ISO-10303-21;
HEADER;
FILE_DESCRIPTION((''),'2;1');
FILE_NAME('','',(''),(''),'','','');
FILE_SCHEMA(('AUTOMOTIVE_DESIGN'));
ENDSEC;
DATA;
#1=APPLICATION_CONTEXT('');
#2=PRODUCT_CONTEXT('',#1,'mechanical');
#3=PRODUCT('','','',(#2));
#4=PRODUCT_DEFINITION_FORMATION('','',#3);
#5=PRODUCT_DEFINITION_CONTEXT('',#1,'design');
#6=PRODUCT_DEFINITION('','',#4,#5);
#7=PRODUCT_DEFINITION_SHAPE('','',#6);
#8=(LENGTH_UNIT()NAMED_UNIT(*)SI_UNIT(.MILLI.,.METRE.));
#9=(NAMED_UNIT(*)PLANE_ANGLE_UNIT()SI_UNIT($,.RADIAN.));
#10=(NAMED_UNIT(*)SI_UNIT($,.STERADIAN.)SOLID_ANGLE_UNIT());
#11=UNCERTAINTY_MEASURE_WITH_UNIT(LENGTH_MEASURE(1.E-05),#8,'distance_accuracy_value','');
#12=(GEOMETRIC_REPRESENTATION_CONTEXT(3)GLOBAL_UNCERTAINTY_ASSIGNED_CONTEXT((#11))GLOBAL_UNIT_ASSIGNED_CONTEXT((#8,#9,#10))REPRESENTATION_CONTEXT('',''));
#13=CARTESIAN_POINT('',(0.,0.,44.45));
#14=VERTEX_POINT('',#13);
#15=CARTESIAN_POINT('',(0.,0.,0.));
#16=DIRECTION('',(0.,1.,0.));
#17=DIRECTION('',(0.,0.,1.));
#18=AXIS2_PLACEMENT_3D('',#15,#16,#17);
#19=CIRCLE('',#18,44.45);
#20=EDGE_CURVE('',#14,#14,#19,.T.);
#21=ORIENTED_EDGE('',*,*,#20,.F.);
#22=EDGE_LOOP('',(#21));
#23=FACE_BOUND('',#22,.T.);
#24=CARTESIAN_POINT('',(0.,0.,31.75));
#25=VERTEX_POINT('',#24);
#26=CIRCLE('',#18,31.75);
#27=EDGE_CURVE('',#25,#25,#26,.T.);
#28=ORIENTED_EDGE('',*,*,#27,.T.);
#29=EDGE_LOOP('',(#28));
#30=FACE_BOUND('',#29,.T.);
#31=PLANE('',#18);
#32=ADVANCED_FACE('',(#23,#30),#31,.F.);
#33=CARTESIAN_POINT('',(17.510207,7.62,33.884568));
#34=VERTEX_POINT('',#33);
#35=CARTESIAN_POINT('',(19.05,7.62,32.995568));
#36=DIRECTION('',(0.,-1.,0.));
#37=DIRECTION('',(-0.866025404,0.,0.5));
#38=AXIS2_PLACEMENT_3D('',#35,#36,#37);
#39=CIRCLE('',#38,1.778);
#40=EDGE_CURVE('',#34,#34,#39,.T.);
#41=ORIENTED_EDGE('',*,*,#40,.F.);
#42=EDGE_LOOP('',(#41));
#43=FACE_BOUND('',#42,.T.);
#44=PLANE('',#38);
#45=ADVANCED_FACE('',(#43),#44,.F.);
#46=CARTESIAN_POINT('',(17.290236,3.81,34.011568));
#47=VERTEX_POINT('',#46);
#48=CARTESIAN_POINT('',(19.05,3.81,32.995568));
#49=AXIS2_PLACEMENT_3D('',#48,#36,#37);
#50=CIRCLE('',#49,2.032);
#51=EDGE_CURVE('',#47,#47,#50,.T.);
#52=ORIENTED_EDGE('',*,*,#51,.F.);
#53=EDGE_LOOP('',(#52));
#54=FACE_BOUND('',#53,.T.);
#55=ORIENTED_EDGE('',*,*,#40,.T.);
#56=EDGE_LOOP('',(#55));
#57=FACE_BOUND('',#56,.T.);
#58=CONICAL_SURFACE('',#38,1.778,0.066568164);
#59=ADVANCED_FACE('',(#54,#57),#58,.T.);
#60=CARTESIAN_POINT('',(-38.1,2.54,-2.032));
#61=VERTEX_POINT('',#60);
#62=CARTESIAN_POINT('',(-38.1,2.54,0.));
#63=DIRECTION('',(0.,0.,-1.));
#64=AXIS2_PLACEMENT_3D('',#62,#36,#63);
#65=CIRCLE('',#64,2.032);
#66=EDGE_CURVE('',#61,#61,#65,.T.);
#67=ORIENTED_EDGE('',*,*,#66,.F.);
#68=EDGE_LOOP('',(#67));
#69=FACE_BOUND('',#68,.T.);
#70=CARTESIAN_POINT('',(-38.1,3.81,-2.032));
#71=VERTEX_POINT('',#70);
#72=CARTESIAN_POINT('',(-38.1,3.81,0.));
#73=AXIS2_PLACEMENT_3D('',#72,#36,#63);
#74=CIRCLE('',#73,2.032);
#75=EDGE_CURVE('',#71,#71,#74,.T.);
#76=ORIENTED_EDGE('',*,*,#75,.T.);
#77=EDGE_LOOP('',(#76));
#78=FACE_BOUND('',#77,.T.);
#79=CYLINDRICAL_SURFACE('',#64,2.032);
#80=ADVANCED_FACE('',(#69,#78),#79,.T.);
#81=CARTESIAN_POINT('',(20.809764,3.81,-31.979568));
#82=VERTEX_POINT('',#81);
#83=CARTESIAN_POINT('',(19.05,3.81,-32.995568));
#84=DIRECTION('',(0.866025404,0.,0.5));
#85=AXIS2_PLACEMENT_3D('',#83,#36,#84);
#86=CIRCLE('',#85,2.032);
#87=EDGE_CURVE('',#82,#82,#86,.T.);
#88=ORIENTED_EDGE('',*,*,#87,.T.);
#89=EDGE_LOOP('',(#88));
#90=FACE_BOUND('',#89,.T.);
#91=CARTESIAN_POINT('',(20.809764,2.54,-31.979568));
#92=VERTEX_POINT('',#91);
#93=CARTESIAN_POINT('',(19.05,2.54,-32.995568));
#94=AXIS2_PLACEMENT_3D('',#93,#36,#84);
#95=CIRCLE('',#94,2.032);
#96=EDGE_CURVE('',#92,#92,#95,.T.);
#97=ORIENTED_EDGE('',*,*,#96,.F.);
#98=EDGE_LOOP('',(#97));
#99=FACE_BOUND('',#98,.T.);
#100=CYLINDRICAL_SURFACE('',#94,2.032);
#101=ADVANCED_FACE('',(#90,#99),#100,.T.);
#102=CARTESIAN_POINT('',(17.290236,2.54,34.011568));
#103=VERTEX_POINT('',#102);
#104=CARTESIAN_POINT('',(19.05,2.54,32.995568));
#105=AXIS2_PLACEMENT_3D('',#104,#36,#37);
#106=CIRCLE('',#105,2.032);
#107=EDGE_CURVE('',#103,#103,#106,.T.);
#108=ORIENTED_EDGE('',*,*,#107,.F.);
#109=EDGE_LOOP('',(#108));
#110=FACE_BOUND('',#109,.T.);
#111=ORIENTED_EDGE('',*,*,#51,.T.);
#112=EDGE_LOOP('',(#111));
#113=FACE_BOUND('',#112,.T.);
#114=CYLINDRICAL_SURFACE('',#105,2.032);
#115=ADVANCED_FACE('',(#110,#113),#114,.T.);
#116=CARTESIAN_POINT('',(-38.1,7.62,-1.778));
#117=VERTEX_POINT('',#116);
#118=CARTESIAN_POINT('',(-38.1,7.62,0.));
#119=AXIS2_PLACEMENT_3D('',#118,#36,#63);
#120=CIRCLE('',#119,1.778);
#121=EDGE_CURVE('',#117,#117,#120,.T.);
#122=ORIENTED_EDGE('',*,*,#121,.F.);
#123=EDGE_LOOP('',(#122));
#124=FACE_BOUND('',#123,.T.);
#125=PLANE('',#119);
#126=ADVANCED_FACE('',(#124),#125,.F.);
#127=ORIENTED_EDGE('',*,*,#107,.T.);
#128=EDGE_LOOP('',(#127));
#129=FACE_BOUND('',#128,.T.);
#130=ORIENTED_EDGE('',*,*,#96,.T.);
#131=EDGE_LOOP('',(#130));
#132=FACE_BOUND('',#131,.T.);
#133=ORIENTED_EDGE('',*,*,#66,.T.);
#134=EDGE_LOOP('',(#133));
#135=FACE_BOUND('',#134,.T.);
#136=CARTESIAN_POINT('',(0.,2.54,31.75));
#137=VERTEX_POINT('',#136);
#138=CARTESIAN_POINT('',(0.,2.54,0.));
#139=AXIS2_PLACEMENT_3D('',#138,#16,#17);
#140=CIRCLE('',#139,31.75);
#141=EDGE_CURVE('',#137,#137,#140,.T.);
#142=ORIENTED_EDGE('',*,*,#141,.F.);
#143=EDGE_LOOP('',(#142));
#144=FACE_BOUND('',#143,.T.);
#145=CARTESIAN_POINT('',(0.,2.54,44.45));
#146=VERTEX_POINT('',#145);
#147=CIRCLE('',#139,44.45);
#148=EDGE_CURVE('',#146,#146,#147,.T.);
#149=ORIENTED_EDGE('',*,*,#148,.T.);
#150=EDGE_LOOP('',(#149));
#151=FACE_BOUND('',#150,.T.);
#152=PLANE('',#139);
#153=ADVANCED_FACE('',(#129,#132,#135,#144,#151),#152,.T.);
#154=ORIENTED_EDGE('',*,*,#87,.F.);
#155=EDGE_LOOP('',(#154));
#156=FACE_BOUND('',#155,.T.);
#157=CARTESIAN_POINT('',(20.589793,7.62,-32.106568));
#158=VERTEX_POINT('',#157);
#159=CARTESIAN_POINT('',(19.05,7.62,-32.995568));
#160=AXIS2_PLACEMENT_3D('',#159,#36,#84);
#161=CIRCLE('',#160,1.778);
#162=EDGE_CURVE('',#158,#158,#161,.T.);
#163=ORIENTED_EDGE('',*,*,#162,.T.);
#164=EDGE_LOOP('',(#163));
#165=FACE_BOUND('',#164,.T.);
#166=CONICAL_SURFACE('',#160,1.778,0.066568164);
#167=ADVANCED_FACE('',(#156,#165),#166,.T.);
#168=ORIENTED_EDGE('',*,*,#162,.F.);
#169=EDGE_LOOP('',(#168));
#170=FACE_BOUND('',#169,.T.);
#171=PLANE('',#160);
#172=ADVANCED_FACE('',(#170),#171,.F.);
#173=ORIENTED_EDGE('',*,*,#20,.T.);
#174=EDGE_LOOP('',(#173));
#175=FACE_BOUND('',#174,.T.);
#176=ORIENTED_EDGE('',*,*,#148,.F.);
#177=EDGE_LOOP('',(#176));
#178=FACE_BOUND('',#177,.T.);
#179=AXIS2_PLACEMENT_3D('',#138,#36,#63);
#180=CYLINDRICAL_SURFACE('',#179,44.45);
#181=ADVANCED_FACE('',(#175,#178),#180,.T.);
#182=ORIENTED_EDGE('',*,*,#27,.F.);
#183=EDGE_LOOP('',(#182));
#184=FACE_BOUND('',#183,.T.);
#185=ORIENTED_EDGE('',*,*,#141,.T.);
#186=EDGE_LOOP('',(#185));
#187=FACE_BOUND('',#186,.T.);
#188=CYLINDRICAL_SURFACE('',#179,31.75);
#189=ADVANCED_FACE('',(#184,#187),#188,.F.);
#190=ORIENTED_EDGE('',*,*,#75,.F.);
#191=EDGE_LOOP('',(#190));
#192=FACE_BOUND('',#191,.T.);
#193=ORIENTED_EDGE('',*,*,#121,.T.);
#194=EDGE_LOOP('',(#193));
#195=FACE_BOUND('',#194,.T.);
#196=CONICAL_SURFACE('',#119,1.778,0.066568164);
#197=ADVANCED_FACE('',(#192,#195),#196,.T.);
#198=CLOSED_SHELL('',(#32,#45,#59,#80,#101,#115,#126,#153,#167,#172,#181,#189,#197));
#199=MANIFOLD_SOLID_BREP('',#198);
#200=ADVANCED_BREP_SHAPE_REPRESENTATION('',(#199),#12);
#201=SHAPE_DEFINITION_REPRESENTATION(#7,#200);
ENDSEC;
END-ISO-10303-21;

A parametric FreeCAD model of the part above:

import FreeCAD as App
import Part
import Sketcher
Q = App.Units.Quantity

doc = App.newDocument("Part")
body = doc.addObject("PartDesign::Body", "Body")

# Sketch on XZ plane
sketch1 = body.newObject("Sketcher::SketchObject", "Sketch")
sketch1.AttachmentSupport = (doc.getObject("XZ_Plane"), [""])
sketch1.MapMode = "FlatFace"
sketch1.addGeometry([
    Part.Circle(App.Vector(0, 0, 0), App.Vector(0, 0, 1), 44),
    Part.Circle(App.Vector(0, 0, 0), App.Vector(0, 0, 1), 32),
], False)
sketch1.addConstraint([
    Sketcher.Constraint("Coincident", 0, 3, -1, 1),
    Sketcher.Constraint("Coincident", 1, 3, -1, 1),
    Sketcher.Constraint("Diameter", 0, Q("3.5 in")),
    Sketcher.Constraint("Diameter", 1, Q("2.5 in")),
])
pad1 = body.newObject("PartDesign::Pad", "Pad")
pad1.Profile = sketch1
pad1.Length = Q("0.1 in")
pad1.Reversed = True

# Sketch on XY plane
sketch2 = body.newObject("Sketcher::SketchObject", "Sketch001")
sketch2.AttachmentSupport = (doc.getObject("XY_Plane"), [""])
sketch2.MapMode = "FlatFace"
sketch2.addGeometry([
    Part.LineSegment(App.Vector(-38.1, 2.5, 0), App.Vector(-38.1, 7.6, 0)),  # 0
    Part.LineSegment(App.Vector(-38.1, 7.6, 0), App.Vector(-39.9, 7.6, 0)),  # 1
    Part.LineSegment(App.Vector(-39.9, 7.6, 0), App.Vector(-40.1, 3.8, 0)),  # 2
    Part.LineSegment(App.Vector(-40.1, 3.8, 0), App.Vector(-40.1, 2.5, 0)),  # 3
    Part.LineSegment(App.Vector(-40.1, 2.5, 0), App.Vector(-38.1, 2.5, 0)),  # 4
], False)
sketch2.addGeometry(Part.LineSegment(App.Vector(-38.1, 2.5, 0), App.Vector(-38.1, 7.6, 0)), True)  # axis
sketch2.addConstraint([
    Sketcher.Constraint("Coincident", 0, 2, 1, 1),
    Sketcher.Constraint("Coincident", 1, 2, 2, 1),
    Sketcher.Constraint("Coincident", 2, 2, 3, 1),
    Sketcher.Constraint("Coincident", 3, 2, 4, 1),
    Sketcher.Constraint("Coincident", 4, 2, 0, 1),
    Sketcher.Constraint("Vertical", 0),
    Sketcher.Constraint("Horizontal", 1),
    Sketcher.Constraint("Vertical", 3),
    Sketcher.Constraint("Horizontal", 4),
    Sketcher.Constraint("Vertical", 5),
    Sketcher.Constraint("Coincident", 5, 1, 4, 2),
    Sketcher.Constraint("Horizontal", 1, 2, 5, 2),
    Sketcher.Constraint("DistanceY", 0, 1, 0, 2, Q("0.2 in")),
    Sketcher.Constraint("DistanceX", 1, 2, 1, 1, Q("0.07 in")),
    Sketcher.Constraint("DistanceX", 4, 1, 4, 2, Q("0.08 in")),
    Sketcher.Constraint("DistanceY", 3, 2, 3, 1, Q("0.05 in")),
    Sketcher.Constraint("DistanceX", 0, 2, -1, 1, Q("1.5 in")),
    Sketcher.Constraint("DistanceY", -1, 1, 0, 2, Q("0.3 in")),
])
revolution = body.newObject("PartDesign::Revolution", "Revolution")
revolution.Profile = sketch2
revolution.ReferenceAxis = (sketch2, ["Axis0"])
revolution.Angle = 360
doc.recompute()

polarpattern = body.newObject("PartDesign::PolarPattern", "PolarPattern")
polarpattern.Originals = [revolution]
polarpattern.Axis = (doc.getObject("Y_Axis"), [""])
polarpattern.Angle = 360
polarpattern.Occurrences = 3
body.Tip = polarpattern

doc.recompute()
